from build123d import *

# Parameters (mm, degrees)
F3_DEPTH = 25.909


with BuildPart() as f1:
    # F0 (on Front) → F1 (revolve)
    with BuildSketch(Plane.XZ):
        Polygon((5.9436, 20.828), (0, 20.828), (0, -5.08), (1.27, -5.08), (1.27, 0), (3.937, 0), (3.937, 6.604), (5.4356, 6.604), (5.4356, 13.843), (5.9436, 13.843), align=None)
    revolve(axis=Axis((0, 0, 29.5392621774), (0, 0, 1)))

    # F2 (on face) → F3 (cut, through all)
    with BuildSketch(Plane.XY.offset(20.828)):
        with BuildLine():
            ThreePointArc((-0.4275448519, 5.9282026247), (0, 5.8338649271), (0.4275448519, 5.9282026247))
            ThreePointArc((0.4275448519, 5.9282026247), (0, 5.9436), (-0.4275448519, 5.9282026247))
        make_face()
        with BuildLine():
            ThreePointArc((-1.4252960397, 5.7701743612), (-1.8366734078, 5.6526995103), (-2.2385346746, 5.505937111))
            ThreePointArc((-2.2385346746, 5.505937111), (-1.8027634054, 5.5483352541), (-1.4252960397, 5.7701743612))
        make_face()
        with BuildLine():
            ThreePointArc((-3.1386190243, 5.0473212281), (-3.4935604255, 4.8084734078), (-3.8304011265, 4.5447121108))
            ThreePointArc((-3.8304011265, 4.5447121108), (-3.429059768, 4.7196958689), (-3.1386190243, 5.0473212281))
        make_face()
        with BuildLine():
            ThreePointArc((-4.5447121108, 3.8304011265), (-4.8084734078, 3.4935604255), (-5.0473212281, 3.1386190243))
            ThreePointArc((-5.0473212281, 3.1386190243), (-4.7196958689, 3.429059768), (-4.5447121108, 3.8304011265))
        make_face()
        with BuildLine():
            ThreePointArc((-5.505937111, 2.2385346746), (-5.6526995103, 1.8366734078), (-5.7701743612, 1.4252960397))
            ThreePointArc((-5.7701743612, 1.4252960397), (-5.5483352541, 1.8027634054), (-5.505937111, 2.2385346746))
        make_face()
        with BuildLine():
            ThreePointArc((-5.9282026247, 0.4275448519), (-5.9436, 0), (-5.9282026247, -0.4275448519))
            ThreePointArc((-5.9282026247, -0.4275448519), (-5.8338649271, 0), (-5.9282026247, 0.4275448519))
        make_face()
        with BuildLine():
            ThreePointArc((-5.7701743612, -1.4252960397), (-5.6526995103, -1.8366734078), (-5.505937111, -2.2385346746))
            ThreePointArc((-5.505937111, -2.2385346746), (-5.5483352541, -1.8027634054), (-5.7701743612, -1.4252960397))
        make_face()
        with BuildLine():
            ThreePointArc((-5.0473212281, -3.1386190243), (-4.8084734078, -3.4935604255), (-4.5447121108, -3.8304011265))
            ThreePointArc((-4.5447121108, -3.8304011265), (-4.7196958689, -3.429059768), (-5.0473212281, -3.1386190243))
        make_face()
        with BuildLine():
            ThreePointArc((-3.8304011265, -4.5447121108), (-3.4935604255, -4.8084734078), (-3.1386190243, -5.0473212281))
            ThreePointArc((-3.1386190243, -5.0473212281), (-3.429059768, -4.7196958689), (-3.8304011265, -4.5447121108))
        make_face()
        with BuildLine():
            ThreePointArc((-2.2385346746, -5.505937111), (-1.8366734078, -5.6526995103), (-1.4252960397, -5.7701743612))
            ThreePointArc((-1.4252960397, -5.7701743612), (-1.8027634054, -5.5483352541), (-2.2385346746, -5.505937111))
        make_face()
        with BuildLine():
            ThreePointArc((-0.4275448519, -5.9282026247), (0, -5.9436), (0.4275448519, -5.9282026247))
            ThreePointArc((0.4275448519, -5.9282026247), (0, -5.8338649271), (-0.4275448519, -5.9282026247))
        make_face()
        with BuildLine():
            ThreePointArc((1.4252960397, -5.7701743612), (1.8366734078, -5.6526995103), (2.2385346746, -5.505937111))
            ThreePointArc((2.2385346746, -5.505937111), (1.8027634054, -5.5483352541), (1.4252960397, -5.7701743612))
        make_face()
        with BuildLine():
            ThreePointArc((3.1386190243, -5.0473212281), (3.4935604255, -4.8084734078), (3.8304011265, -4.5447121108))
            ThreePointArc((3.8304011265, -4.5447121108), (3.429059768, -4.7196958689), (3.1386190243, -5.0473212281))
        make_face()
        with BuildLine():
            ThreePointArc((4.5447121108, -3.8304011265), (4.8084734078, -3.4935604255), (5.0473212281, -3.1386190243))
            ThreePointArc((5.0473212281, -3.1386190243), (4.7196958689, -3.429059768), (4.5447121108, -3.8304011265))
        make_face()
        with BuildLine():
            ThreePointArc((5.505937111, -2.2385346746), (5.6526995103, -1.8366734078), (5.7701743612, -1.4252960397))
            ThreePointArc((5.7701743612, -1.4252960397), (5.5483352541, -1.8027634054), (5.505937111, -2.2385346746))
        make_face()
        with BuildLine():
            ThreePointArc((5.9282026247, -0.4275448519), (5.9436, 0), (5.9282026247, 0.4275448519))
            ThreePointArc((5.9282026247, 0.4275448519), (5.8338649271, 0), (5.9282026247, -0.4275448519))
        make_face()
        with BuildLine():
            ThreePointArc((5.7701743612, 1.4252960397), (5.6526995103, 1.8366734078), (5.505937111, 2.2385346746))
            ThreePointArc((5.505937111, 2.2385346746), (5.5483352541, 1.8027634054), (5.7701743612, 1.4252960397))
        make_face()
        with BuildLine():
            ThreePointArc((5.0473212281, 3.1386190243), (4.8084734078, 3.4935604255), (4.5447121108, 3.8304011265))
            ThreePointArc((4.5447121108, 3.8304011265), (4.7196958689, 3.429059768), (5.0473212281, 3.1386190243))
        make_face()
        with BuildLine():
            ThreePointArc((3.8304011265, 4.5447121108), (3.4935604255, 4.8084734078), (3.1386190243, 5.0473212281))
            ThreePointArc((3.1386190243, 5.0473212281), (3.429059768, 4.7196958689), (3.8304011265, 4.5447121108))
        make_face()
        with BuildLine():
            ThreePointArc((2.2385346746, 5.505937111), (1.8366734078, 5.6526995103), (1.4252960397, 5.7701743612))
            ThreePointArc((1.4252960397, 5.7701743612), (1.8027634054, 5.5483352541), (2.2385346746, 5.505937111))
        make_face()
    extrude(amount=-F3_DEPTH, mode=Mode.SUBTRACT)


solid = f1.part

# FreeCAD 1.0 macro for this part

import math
import FreeCAD as App
import Part
import Sketcher
Q = App.Units.Quantity


def add_polygon(sketch, points):
    """Adds a closed chain of lines whose ends are joined by coincident constraints."""
    first, n = sketch.GeometryCount, len(points)
    for a, b in zip(points, points[1:] + points[:1]):
        sketch.addGeometry(Part.LineSegment(App.Vector(*a, 0), App.Vector(*b, 0)), False)
    for i in range(n):
        sketch.addConstraint(Sketcher.Constraint("Coincident", first + i, 2, first + (i + 1) % n, 1))

doc = App.newDocument("Part")
body = doc.addObject("PartDesign::Body", "Body")

# Sketch on XZ plane
sketch1 = body.newObject("Sketcher::SketchObject", "Sketch")
sketch1.AttachmentSupport = (doc.getObject("XZ_Plane"), [""])
sketch1.MapMode = "FlatFace"
add_polygon(sketch1, [(5.9, 20.8), (0, 20.8), (0, -5.1), (1.3, -5.1), (1.3, 0), (3.9, 0), (3.9, 6.6), (5.4, 6.6), (5.4, 13.8), (5.9, 13.8)])  # lines 0-9
sketch1.addConstraint([
    Sketcher.Constraint("Horizontal", 0),
    Sketcher.Constraint("Vertical", 1),
    Sketcher.Constraint("Horizontal", 2),
    Sketcher.Constraint("Vertical", 3),
    Sketcher.Constraint("Horizontal", 4),
    Sketcher.Constraint("Vertical", 5),
    Sketcher.Constraint("Horizontal", 6),
    Sketcher.Constraint("Vertical", 7),
    Sketcher.Constraint("Horizontal", 8),
    Sketcher.Constraint("Vertical", 9),
    Sketcher.Constraint("PointOnObject", 0, 2, -2),
    Sketcher.Constraint("PointOnObject", 3, 2, -1),
    Sketcher.Constraint("DistanceY", 3, 1, 3, 2, Q("0.2 in")),
    Sketcher.Constraint("DistanceX", 2, 1, 2, 2, Q("0.05 in")),
    Sketcher.Constraint("DistanceX", 8, 1, 8, 2, Q("0.02 in")),
    Sketcher.Constraint("DistanceY", 1, 2, 1, 1, Q("1.02 in")),
    Sketcher.Constraint("DistanceY", 5, 1, 5, 2, Q("0.26 in")),
    Sketcher.Constraint("DistanceX", 0, 2, 0, 1, Q("0.234 in")),
    Sketcher.Constraint("DistanceX", 4, 1, 4, 2, Q("0.105 in")),
    Sketcher.Constraint("DistanceY", 7, 1, 7, 2, Q("0.285 in")),
])
revolution = body.newObject("PartDesign::Revolution", "Revolution")
revolution.Profile = sketch1
revolution.ReferenceAxis = (sketch1, ["V_Axis"])
revolution.Angle = 360

# Sketch on XY plane
sketch2 = body.newObject("Sketcher::SketchObject", "Sketch001")
sketch2.AttachmentSupport = (doc.getObject("XY_Plane"), [""])
sketch2.MapMode = "FlatFace"
sketch2.AttachmentOffset = App.Placement(App.Vector(0, 0, 0.82 * 25.4), App.Rotation())
sketch2.addGeometry([
    Part.ArcOfCircle(Part.Circle(App.Vector(0, 6.8, 0), App.Vector(0, 0, 1), 1), math.radians(-115), math.radians(-65)),  # 0
    Part.ArcOfCircle(Part.Circle(App.Vector(0, 0, 0), App.Vector(0, 0, 1), 5.9), math.radians(85.87), math.radians(94.13)),  # 1
    Part.ArcOfCircle(Part.Circle(App.Vector(0, 0, 0), App.Vector(0, 0, 1), 5.9), math.radians(103.87), math.radians(112.13)),  # 2
    Part.ArcOfCircle(Part.Circle(App.Vector(-2.1, 6.5, 0), App.Vector(0, 0, 1), 1), math.radians(-97), math.radians(-47)),  # 3
    Part.ArcOfCircle(Part.Circle(App.Vector(0, 0, 0), App.Vector(0, 0, 1), 5.9), math.radians(121.87), math.radians(130.13)),  # 4
    Part.ArcOfCircle(Part.Circle(App.Vector(-4, 5.5, 0), App.Vector(0, 0, 1), 1), math.radians(-79), math.radians(-29)),  # 5
    Part.ArcOfCircle(Part.Circle(App.Vector(0, 0, 0), App.Vector(0, 0, 1), 5.9), math.radians(139.87), math.radians(148.13)),  # 6
    Part.ArcOfCircle(Part.Circle(App.Vector(-5.5, 4, 0), App.Vector(0, 0, 1), 1), math.radians(-61), math.radians(-11)),  # 7
    Part.ArcOfCircle(Part.Circle(App.Vector(0, 0, 0), App.Vector(0, 0, 1), 5.9), math.radians(157.87), math.radians(166.13)),  # 8
    Part.ArcOfCircle(Part.Circle(App.Vector(-6.5, 2.1, 0), App.Vector(0, 0, 1), 1), math.radians(-43), math.radians(7)),  # 9
    Part.ArcOfCircle(Part.Circle(App.Vector(0, 0, 0), App.Vector(0, 0, 1), 5.9), math.radians(175.87), math.radians(184.13)),  # 10
    Part.ArcOfCircle(Part.Circle(App.Vector(-6.8, 0, 0), App.Vector(0, 0, 1), 1), math.radians(-25), math.radians(25)),  # 11
    Part.ArcOfCircle(Part.Circle(App.Vector(0, 0, 0), App.Vector(0, 0, 1), 5.9), math.radians(-166.13), math.radians(-157.87)),  # 12
    Part.ArcOfCircle(Part.Circle(App.Vector(-6.5, -2.1, 0), App.Vector(0, 0, 1), 1), math.radians(-7), math.radians(43)),  # 13
    Part.ArcOfCircle(Part.Circle(App.Vector(0, 0, 0), App.Vector(0, 0, 1), 5.9), math.radians(-148.13), math.radians(-139.87)),  # 14
    Part.ArcOfCircle(Part.Circle(App.Vector(-5.5, -4, 0), App.Vector(0, 0, 1), 1), math.radians(11), math.radians(61)),  # 15
    Part.ArcOfCircle(Part.Circle(App.Vector(0, 0, 0), App.Vector(0, 0, 1), 5.9), math.radians(-130.13), math.radians(-121.87)),  # 16
    Part.ArcOfCircle(Part.Circle(App.Vector(-4, -5.5, 0), App.Vector(0, 0, 1), 1), math.radians(29), math.radians(79)),  # 17
    Part.ArcOfCircle(Part.Circle(App.Vector(0, 0, 0), App.Vector(0, 0, 1), 5.9), math.radians(-112.13), math.radians(-103.87)),  # 18
    Part.ArcOfCircle(Part.Circle(App.Vector(-2.1, -6.5, 0), App.Vector(0, 0, 1), 1), math.radians(47), math.radians(97)),  # 19
    Part.ArcOfCircle(Part.Circle(App.Vector(0, 0, 0), App.Vector(0, 0, 1), 5.9), math.radians(-94.13), math.radians(-85.87)),  # 20
    Part.ArcOfCircle(Part.Circle(App.Vector(0, -6.8, 0), App.Vector(0, 0, 1), 1), math.radians(65), math.radians(115)),  # 21
    Part.ArcOfCircle(Part.Circle(App.Vector(0, 0, 0), App.Vector(0, 0, 1), 5.9), math.radians(-76.13), math.radians(-67.87)),  # 22
    Part.ArcOfCircle(Part.Circle(App.Vector(2.1, -6.5, 0), App.Vector(0, 0, 1), 1), math.radians(83), math.radians(133)),  # 23
    Part.ArcOfCircle(Part.Circle(App.Vector(0, 0, 0), App.Vector(0, 0, 1), 5.9), math.radians(-58.13), math.radians(-49.87)),  # 24
    Part.ArcOfCircle(Part.Circle(App.Vector(4, -5.5, 0), App.Vector(0, 0, 1), 1), math.radians(101), math.radians(151)),  # 25
    Part.ArcOfCircle(Part.Circle(App.Vector(0, 0, 0), App.Vector(0, 0, 1), 5.9), math.radians(-40.13), math.radians(-31.87)),  # 26
    Part.ArcOfCircle(Part.Circle(App.Vector(5.5, -4, 0), App.Vector(0, 0, 1), 1), math.radians(119), math.radians(169)),  # 27
    Part.ArcOfCircle(Part.Circle(App.Vector(0, 0, 0), App.Vector(0, 0, 1), 5.9), math.radians(-22.13), math.radians(-13.87)),  # 28
    Part.ArcOfCircle(Part.Circle(App.Vector(6.5, -2.1, 0), App.Vector(0, 0, 1), 1), math.radians(137), math.radians(187)),  # 29
    Part.ArcOfCircle(Part.Circle(App.Vector(0, 0, 0), App.Vector(0, 0, 1), 5.9), math.radians(-4.13), math.radians(4.13)),  # 30
    Part.ArcOfCircle(Part.Circle(App.Vector(6.8, 0, 0), App.Vector(0, 0, 1), 1), math.radians(155), math.radians(205)),  # 31
    Part.ArcOfCircle(Part.Circle(App.Vector(0, 0, 0), App.Vector(0, 0, 1), 5.9), math.radians(13.87), math.radians(22.13)),  # 32
    Part.ArcOfCircle(Part.Circle(App.Vector(6.5, 2.1, 0), App.Vector(0, 0, 1), 1), math.radians(173), math.radians(223)),  # 33
    Part.ArcOfCircle(Part.Circle(App.Vector(0, 0, 0), App.Vector(0, 0, 1), 5.9), math.radians(31.87), math.radians(40.13)),  # 34
    Part.ArcOfCircle(Part.Circle(App.Vector(5.5, 4, 0), App.Vector(0, 0, 1), 1), math.radians(-169), math.radians(-119)),  # 35
    Part.ArcOfCircle(Part.Circle(App.Vector(0, 0, 0), App.Vector(0, 0, 1), 5.9), math.radians(49.87), math.radians(58.13)),  # 36
    Part.ArcOfCircle(Part.Circle(App.Vector(4, 5.5, 0), App.Vector(0, 0, 1), 1), math.radians(-151), math.radians(-101)),  # 37
    Part.ArcOfCircle(Part.Circle(App.Vector(0, 0, 0), App.Vector(0, 0, 1), 5.9), math.radians(67.87), math.radians(76.13)),  # 38
    Part.ArcOfCircle(Part.Circle(App.Vector(2.1, 6.5, 0), App.Vector(0, 0, 1), 1), math.radians(-133), math.radians(-83)),  # 39
], False)
sketch2.addConstraint([
    Sketcher.Constraint("Coincident", 0, 1, 1, 2),
    Sketcher.Constraint("Coincident", 1, 1, 0, 2),
    Sketcher.Constraint("Coincident", 2, 1, 3, 2),
    Sketcher.Constraint("Coincident", 3, 1, 2, 2),
    Sketcher.Constraint("Coincident", 4, 1, 5, 2),
    Sketcher.Constraint("Coincident", 5, 1, 4, 2),
    Sketcher.Constraint("Coincident", 6, 1, 7, 2),
    Sketcher.Constraint("Coincident", 7, 1, 6, 2),
    Sketcher.Constraint("Coincident", 8, 1, 9, 2),
    Sketcher.Constraint("Coincident", 9, 1, 8, 2),
    Sketcher.Constraint("Coincident", 10, 1, 11, 2),
    Sketcher.Constraint("Coincident", 11, 1, 10, 2),
    Sketcher.Constraint("Coincident", 12, 1, 13, 2),
    Sketcher.Constraint("Coincident", 13, 1, 12, 2),
    Sketcher.Constraint("Coincident", 14, 1, 15, 2),
    Sketcher.Constraint("Coincident", 15, 1, 14, 2),
    Sketcher.Constraint("Coincident", 16, 1, 17, 2),
    Sketcher.Constraint("Coincident", 17, 1, 16, 2),
    Sketcher.Constraint("Coincident", 18, 1, 19, 2),
    Sketcher.Constraint("Coincident", 19, 1, 18, 2),
    Sketcher.Constraint("Coincident", 20, 1, 21, 2),
    Sketcher.Constraint("Coincident", 21, 1, 20, 2),
    Sketcher.Constraint("Coincident", 22, 1, 23, 2),
    Sketcher.Constraint("Coincident", 23, 1, 22, 2),
    Sketcher.Constraint("Coincident", 24, 1, 25, 2),
    Sketcher.Constraint("Coincident", 25, 1, 24, 2),
    Sketcher.Constraint("Coincident", 26, 1, 27, 2),
    Sketcher.Constraint("Coincident", 27, 1, 26, 2),
    Sketcher.Constraint("Coincident", 28, 1, 29, 2),
    Sketcher.Constraint("Coincident", 29, 1, 28, 2),
    Sketcher.Constraint("Coincident", 30, 1, 31, 2),
    Sketcher.Constraint("Coincident", 31, 1, 30, 2),
    Sketcher.Constraint("Coincident", 32, 1, 33, 2),
    Sketcher.Constraint("Coincident", 33, 1, 32, 2),
    Sketcher.Constraint("Coincident", 34, 1, 35, 2),
    Sketcher.Constraint("Coincident", 35, 1, 34, 2),
    Sketcher.Constraint("Coincident", 36, 1, 37, 2),
    Sketcher.Constraint("Coincident", 37, 1, 36, 2),
    Sketcher.Constraint("Coincident", 38, 1, 39, 2),
    Sketcher.Constraint("Coincident", 39, 1, 38, 2),
    Sketcher.Constraint("Coincident", 1, 3, -1, 1),
    Sketcher.Constraint("Coincident", 2, 3, -1, 1),
    Sketcher.Constraint("Coincident", 4, 3, -1, 1),
    Sketcher.Constraint("Coincident", 6, 3, -1, 1),
    Sketcher.Constraint("Coincident", 8, 3, -1, 1),
    Sketcher.Constraint("Coincident", 10, 3, -1, 1),
    Sketcher.Constraint("Coincident", 12, 3, -1, 1),
    Sketcher.Constraint("Coincident", 14, 3, -1, 1),
    Sketcher.Constraint("Coincident", 16, 3, -1, 1),
    Sketcher.Constraint("Coincident", 18, 3, -1, 1),
    Sketcher.Constraint("Coincident", 20, 3, -1, 1),
    Sketcher.Constraint("Coincident", 22, 3, -1, 1),
    Sketcher.Constraint("Coincident", 24, 3, -1, 1),
    Sketcher.Constraint("Coincident", 26, 3, -1, 1),
    Sketcher.Constraint("Coincident", 28, 3, -1, 1),
    Sketcher.Constraint("Coincident", 30, 3, -1, 1),
    Sketcher.Constraint("Coincident", 32, 3, -1, 1),
    Sketcher.Constraint("Coincident", 34, 3, -1, 1),
    Sketcher.Constraint("Coincident", 36, 3, -1, 1),
    Sketcher.Constraint("Coincident", 38, 3, -1, 1),
    Sketcher.Constraint("Equal", 1, 2),
    Sketcher.Constraint("Equal", 0, 3),
    Sketcher.Constraint("Equal", 2, 4),
    Sketcher.Constraint("Equal", 3, 5),
    Sketcher.Constraint("Equal", 4, 6),
    Sketcher.Constraint("Equal", 5, 7),
    Sketcher.Constraint("Equal", 6, 8),
    Sketcher.Constraint("Equal", 7, 9),
    Sketcher.Constraint("Equal", 8, 10),
    Sketcher.Constraint("Equal", 9, 11),
    Sketcher.Constraint("Equal", 10, 12),
    Sketcher.Constraint("Equal", 11, 13),
    Sketcher.Constraint("Equal", 12, 14),
    Sketcher.Constraint("Equal", 13, 15),
    Sketcher.Constraint("Equal", 14, 16),
    Sketcher.Constraint("Equal", 15, 17),
    Sketcher.Constraint("Equal", 16, 18),
    Sketcher.Constraint("Equal", 17, 19),
    Sketcher.Constraint("Equal", 18, 20),
    Sketcher.Constraint("Equal", 19, 21),
    Sketcher.Constraint("Equal", 20, 22),
    Sketcher.Constraint("Equal", 21, 23),
    Sketcher.Constraint("Equal", 22, 24),
    Sketcher.Constraint("Equal", 23, 25),
    Sketcher.Constraint("Equal", 24, 26),
    Sketcher.Constraint("Equal", 25, 27),
    Sketcher.Constraint("Equal", 26, 28),
    Sketcher.Constraint("Equal", 27, 29),
    Sketcher.Constraint("Equal", 28, 30),
    Sketcher.Constraint("Equal", 29, 31),
    Sketcher.Constraint("Equal", 30, 32),
    Sketcher.Constraint("Equal", 31, 33),
    Sketcher.Constraint("Equal", 32, 34),
    Sketcher.Constraint("Equal", 33, 35),
    Sketcher.Constraint("Equal", 34, 36),
    Sketcher.Constraint("Equal", 35, 37),
    Sketcher.Constraint("Equal", 36, 38),
    Sketcher.Constraint("Equal", 37, 39),
    Sketcher.Constraint("Symmetric", 0, 3, 21, 3, -1, 1),
    Sketcher.Constraint("Symmetric", 3, 3, 23, 3, -1, 1),
    Sketcher.Constraint("Symmetric", 5, 3, 25, 3, -1, 1),
    Sketcher.Constraint("Symmetric", 7, 3, 27, 3, -1, 1),
    Sketcher.Constraint("Symmetric", 9, 3, 29, 3, -1, 1),
    Sketcher.Constraint("Symmetric", 11, 3, 31, 3, -1, 1),
    Sketcher.Constraint("Symmetric", 13, 3, 33, 3, -1, 1),
    Sketcher.Constraint("Symmetric", 15, 3, 35, 3, -1, 1),
    Sketcher.Constraint("Symmetric", 17, 3, 37, 3, -1, 1),
    Sketcher.Constraint("Symmetric", 19, 3, 39, 3, -1, 1),
    Sketcher.Constraint("Symmetric", 19, 3, 23, 3, -2),
    Sketcher.Constraint("Symmetric", 17, 3, 25, 3, -2),
    Sketcher.Constraint("Symmetric", 15, 3, 27, 3, -2),
    Sketcher.Constraint("Symmetric", 13, 3, 29, 3, -2),
    Sketcher.Constraint("PointOnObject", 0, 3, -2),
    Sketcher.Constraint("PointOnObject", 11, 3, -1),
    Sketcher.Constraint("Radius", 0, Q("0.04 in")),
    Sketcher.Constraint("Radius", 1, Q("0.234 in")),
    Sketcher.Constraint("DistanceX", 5, 1, -1, 1, Q("3.830401 mm")),
    Sketcher.Constraint("DistanceY", -1, 1, 6, 1, Q("3.830401 mm")),
    Sketcher.Constraint("DistanceY", -1, 1, 3, 3, Q("6.514609 mm")),
    Sketcher.Constraint("DistanceX", 5, 3, -1, 1, Q("4.02625 mm")),
    Sketcher.Constraint("DistanceY", -1, 1, 7, 3, Q("4.02625 mm")),
    Sketcher.Constraint("DistanceX", 9, 3, -1, 1, Q("6.514609 mm")),
    Sketcher.Constraint("DistanceY", -1, 1, 0, 3, Q("6.849865 mm")),
    Sketcher.Constraint("DistanceX", 3, 3, -1, 1, Q("2.116725 mm")),
    Sketcher.Constraint("DistanceY", -1, 1, 9, 3, Q("2.116725 mm")),
    Sketcher.Constraint("DistanceX", 11, 3, -1, 1, Q("6.849865 mm")),
])
pocket1 = body.newObject("PartDesign::Pocket", "Pocket")
pocket1.Profile = sketch2
pocket1.Type = "ThroughAll"

doc.recompute()
